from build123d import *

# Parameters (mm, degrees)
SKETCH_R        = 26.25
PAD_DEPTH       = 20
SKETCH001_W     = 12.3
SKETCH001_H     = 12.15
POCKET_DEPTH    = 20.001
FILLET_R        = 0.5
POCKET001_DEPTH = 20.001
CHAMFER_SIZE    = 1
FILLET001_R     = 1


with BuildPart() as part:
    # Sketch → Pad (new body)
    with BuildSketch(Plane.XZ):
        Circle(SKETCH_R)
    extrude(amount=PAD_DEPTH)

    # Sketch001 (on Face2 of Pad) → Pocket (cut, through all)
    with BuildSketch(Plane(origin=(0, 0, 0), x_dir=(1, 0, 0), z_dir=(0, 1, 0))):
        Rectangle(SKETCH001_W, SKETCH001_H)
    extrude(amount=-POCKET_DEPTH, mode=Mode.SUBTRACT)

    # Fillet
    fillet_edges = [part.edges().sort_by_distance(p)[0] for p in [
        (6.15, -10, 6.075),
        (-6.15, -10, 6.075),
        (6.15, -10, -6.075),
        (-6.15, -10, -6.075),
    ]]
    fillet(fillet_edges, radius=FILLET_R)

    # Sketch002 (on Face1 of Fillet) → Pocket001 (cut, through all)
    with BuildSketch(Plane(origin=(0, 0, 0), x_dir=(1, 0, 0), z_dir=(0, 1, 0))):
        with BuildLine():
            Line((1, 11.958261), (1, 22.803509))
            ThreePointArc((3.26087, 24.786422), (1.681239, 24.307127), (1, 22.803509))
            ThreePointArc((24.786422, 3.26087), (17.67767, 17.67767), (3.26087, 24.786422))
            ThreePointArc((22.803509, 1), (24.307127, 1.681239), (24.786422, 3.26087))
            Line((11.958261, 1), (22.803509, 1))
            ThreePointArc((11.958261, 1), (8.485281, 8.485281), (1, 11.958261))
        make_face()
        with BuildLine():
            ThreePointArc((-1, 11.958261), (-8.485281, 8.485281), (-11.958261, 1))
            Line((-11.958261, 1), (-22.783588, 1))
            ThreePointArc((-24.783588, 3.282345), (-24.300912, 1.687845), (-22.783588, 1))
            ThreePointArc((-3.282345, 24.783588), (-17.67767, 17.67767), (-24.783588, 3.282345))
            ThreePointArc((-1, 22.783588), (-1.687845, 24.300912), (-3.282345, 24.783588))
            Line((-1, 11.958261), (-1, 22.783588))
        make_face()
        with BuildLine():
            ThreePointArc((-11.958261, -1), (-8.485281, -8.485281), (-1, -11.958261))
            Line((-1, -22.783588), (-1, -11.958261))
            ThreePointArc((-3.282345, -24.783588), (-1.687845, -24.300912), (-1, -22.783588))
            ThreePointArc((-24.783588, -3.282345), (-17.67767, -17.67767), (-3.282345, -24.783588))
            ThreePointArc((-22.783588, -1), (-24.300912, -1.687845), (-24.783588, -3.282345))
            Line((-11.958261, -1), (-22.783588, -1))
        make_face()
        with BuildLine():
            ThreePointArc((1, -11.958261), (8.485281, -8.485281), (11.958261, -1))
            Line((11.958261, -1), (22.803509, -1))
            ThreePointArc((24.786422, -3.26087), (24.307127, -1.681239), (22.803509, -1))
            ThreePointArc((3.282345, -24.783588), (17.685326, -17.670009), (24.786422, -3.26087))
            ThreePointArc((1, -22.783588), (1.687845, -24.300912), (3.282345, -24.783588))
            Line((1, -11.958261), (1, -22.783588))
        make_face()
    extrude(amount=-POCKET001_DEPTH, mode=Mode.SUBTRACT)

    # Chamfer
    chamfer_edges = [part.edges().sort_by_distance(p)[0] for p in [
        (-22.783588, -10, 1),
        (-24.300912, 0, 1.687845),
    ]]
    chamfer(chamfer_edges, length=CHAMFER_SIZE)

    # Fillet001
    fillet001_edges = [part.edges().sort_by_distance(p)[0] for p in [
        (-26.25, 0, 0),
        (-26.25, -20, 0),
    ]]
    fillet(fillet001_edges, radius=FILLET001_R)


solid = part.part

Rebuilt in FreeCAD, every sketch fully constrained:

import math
import FreeCAD as App
import Part
import Sketcher
Q = App.Units.Quantity


def edges_at(feature, points):
    """Names of the edges that pass closest to the given points."""
    edges = feature.Shape.Edges
    near = lambda p: min(range(len(edges)), key=lambda i: edges[i].distToShape(Part.Vertex(*p))[0])
    return sorted({f"Edge{near(p) + 1}" for p in points})

doc = App.newDocument("Part")
body = doc.addObject("PartDesign::Body", "Body")

sketch1 = body.newObject("Sketcher::SketchObject", "Sketch")
sketch1.AttachmentSupport = (doc.getObject("XZ_Plane"), [""])
sketch1.MapMode = "FlatFace"
sketch1.addGeometry(Part.Circle(App.Vector(0, 0, 0), App.Vector(0, 0, 1), 26), False)
sketch1.addConstraint([
    Sketcher.Constraint("Coincident", 0, 3, -1, 1),
    Sketcher.Constraint("Diameter", 0, Q("52.5 mm")),
])
pad1 = body.newObject("PartDesign::Pad", "Pad")
pad1.Profile = sketch1
pad1.Length = 20

sketch2 = body.newObject("Sketcher::SketchObject", "Sketch001")
sketch2.AttachmentSupport = (doc.getObject("XZ_Plane"), [""])
sketch2.MapMode = "FlatFace"
sketch2.addGeometry([
    Part.LineSegment(App.Vector(-6, -6, 0), App.Vector(-6, 6, 0)),
    Part.LineSegment(App.Vector(-6, 6, 0), App.Vector(6, 6, 0)),
    Part.LineSegment(App.Vector(6, 6, 0), App.Vector(6, -6, 0)),
    Part.LineSegment(App.Vector(6, -6, 0), App.Vector(-6, -6, 0)),
], False)
sketch2.addConstraint([
    Sketcher.Constraint("Coincident", 0, 2, 1, 1),
    Sketcher.Constraint("Coincident", 1, 2, 2, 1),
    Sketcher.Constraint("Coincident", 2, 2, 3, 1),
    Sketcher.Constraint("Coincident", 3, 2, 0, 1),
    Sketcher.Constraint("Vertical", 0),
    Sketcher.Constraint("Horizontal", 1),
    Sketcher.Constraint("Vertical", 2),
    Sketcher.Constraint("Horizontal", 3),
    Sketcher.Constraint("Symmetric", 0, 2, 2, 2, -1, 1),
    Sketcher.Constraint("DistanceX", 1, 1, 1, 2, Q("12.3 mm")),
    Sketcher.Constraint("DistanceY", 0, 1, 0, 2, Q("12.15 mm")),
])
pocket1 = body.newObject("PartDesign::Pocket", "Pocket")
pocket1.Profile = sketch2
pocket1.Type = "ThroughAll"
pocket1.Reversed = True
doc.recompute()

fillet = body.newObject("PartDesign::Fillet", "Fillet")
fillet.Base = (pocket1, edges_at(pocket1, [
    (6.15, -10, 6.075),
    (-6.15, -10, 6.075),
    (6.15, -10, -6.075),
    (-6.15, -10, -6.075),
]))
fillet.Radius = 0.5

sketch3 = body.newObject("Sketcher::SketchObject", "Sketch002")
sketch3.AttachmentSupport = (doc.getObject("XZ_Plane"), [""])
sketch3.MapMode = "FlatFace"
sketch3.addGeometry([
    Part.LineSegment(App.Vector(1, -22.8, 0), App.Vector(1, -12, 0)),
    Part.ArcOfCircle(Part.Circle(App.Vector(0, 0, 0), App.Vector(0, 0, 1), 12), math.radians(-85), math.radians(-5)),
    Part.LineSegment(App.Vector(12, -1, 0), App.Vector(22.8, -1, 0)),
    Part.ArcOfCircle(Part.Circle(App.Vector(22.8, -3, 0), App.Vector(0, 0, 1), 2), math.radians(-7), math.radians(90)),
    Part.ArcOfCircle(Part.Circle(App.Vector(0, 0, 0), App.Vector(0, 0, 1), 25), math.radians(-83), math.radians(-7)),
    Part.ArcOfCircle(Part.Circle(App.Vector(3, -22.8, 0), App.Vector(0, 0, 1), 2), math.radians(-180), math.radians(-83)),
    Part.ArcOfCircle(Part.Circle(App.Vector(0, 0, 0), App.Vector(0, 0, 1), 12), math.radians(-175), math.radians(-95)),
    Part.LineSegment(App.Vector(-1, -12, 0), App.Vector(-1, -22.8, 0)),
    Part.ArcOfCircle(Part.Circle(App.Vector(-3, -22.8, 0), App.Vector(0, 0, 1), 2), math.radians(-98), math.radians(0)),
    Part.ArcOfCircle(Part.Circle(App.Vector(0, 0, 0), App.Vector(0, 0, 1), 25), math.radians(-172), math.radians(-98)),
    Part.ArcOfCircle(Part.Circle(App.Vector(-22.8, -3, 0), App.Vector(0, 0, 1), 2), math.radians(90), math.radians(188)),
    Part.LineSegment(App.Vector(-22.8, -1, 0), App.Vector(-12, -1, 0)),
    Part.ArcOfCircle(Part.Circle(App.Vector(0, 0, 0), App.Vector(0, 0, 1), 12), math.radians(95), math.radians(175)),
    Part.LineSegment(App.Vector(-12, 1, 0), App.Vector(-22.8, 1, 0)),
    Part.ArcOfCircle(Part.Circle(App.Vector(-22.8, 3, 0), App.Vector(0, 0, 1), 2), math.radians(172), math.radians(270)),
    Part.ArcOfCircle(Part.Circle(App.Vector(0, 0, 0), App.Vector(0, 0, 1), 25), math.radians(98), math.radians(172)),
    Part.ArcOfCircle(Part.Circle(App.Vector(-3, 22.8, 0), App.Vector(0, 0, 1), 2), math.radians(0), math.radians(98)),
    Part.LineSegment(App.Vector(-1, 22.8, 0), App.Vector(-1, 12, 0)),
    Part.ArcOfCircle(Part.Circle(App.Vector(0, 0, 0), App.Vector(0, 0, 1), 12), math.radians(5), math.radians(85)),
    Part.LineSegment(App.Vector(1, 12, 0), App.Vector(1, 22.8, 0)),
    Part.ArcOfCircle(Part.Circle(App.Vector(3, 22.8, 0), App.Vector(0, 0, 1), 2), math.radians(82), math.radians(180)),
    Part.ArcOfCircle(Part.Circle(App.Vector(0, 0, 0), App.Vector(0, 0, 1), 25), math.radians(7), math.radians(82)),
    Part.ArcOfCircle(Part.Circle(App.Vector(22.8, 3, 0), App.Vector(0, 0, 1), 2), math.radians(-90), math.radians(7)),
    Part.LineSegment(App.Vector(22.8, 1, 0), App.Vector(12, 1, 0)),
], False)
sketch3.addConstraint([
    Sketcher.Constraint("Coincident", 0, 2, 1, 1),
    Sketcher.Constraint("Coincident", 1, 2, 2, 1),
    Sketcher.Constraint("Tangent", 2, 2, 3, 2),
    Sketcher.Constraint("Tangent", 3, 1, 4, 2),
    Sketcher.Constraint("Tangent", 4, 1, 5, 2),
    Sketcher.Constraint("Tangent", 5, 1, 0, 1),
    Sketcher.Constraint("Coincident", 6, 2, 7, 1),
    Sketcher.Constraint("Tangent", 7, 2, 8, 2),
    Sketcher.Constraint("Tangent", 8, 1, 9, 2),
    Sketcher.Constraint("Tangent", 9, 1, 10, 2),
    Sketcher.Constraint("Tangent", 10, 1, 11, 1),
    Sketcher.Constraint("Coincident", 11, 2, 6, 1),
    Sketcher.Constraint("Coincident", 12, 2, 13, 1),
    Sketcher.Constraint("Tangent", 13, 2, 14, 2),
    Sketcher.Constraint("Tangent", 14, 1, 15, 2),
    Sketcher.Constraint("Tangent", 15, 1, 16, 2),
    Sketcher.Constraint("Tangent", 16, 1, 17, 1),
    Sketcher.Constraint("Coincident", 17, 2, 12, 1),
    Sketcher.Constraint("Coincident", 18, 2, 19, 1),
    Sketcher.Constraint("Tangent", 19, 2, 20, 2),
    Sketcher.Constraint("Tangent", 20, 1, 21, 2),
    Sketcher.Constraint("Tangent", 21, 1, 22, 2),
    Sketcher.Constraint("Tangent", 22, 1, 23, 1),
    Sketcher.Constraint("Coincident", 23, 2, 18, 1),
    Sketcher.Constraint("Vertical", 0),
    Sketcher.Constraint("Horizontal", 2),
    Sketcher.Constraint("Vertical", 7),
    Sketcher.Constraint("Horizontal", 11),
    Sketcher.Constraint("Horizontal", 13),
    Sketcher.Constraint("Vertical", 17),
    Sketcher.Constraint("Vertical", 19),
    Sketcher.Constraint("Horizontal", 23),
    Sketcher.Constraint("Coincident", 1, 3, -1, 1),
    Sketcher.Constraint("Coincident", 4, 3, -1, 1),
    Sketcher.Constraint("Coincident", 6, 3, -1, 1),
    Sketcher.Constraint("Coincident", 9, 3, -1, 1),
    Sketcher.Constraint("Coincident", 12, 3, -1, 1),
    Sketcher.Constraint("Coincident", 15, 3, -1, 1),
    Sketcher.Constraint("Coincident", 18, 3, -1, 1),
    Sketcher.Constraint("Coincident", 21, 3, -1, 1),
    Sketcher.Constraint("Equal", 3, 5),
    Sketcher.Constraint("Equal", 1, 6),
    Sketcher.Constraint("Equal", 8, 10),
    Sketcher.Constraint("Equal", 6, 12),
    Sketcher.Constraint("Equal", 10, 14),
    Sketcher.Constraint("Equal", 9, 15),
    Sketcher.Constraint("Equal", 14, 16),
    Sketcher.Constraint("Equal", 12, 18),
    Sketcher.Constraint("Equal", 16, 20),
    Sketcher.Constraint("Equal", 5, 22),
    Sketcher.Constraint("Symmetric", 8, 3, 20, 3, -1, 1),
    Sketcher.Constraint("Symmetric", 3, 3, 22, 3, -1),
    Sketcher.Constraint("Horizontal", 16, 3, 20, 3),
    Sketcher.Constraint("Horizontal", 0, 2, 6, 2),
    Sketcher.Constraint("Horizontal", 2, 2, 10, 1),
    Sketcher.Constraint("Horizontal", 13, 2, 22, 1),
    Sketcher.Constraint("Equal", 23, 0),
    Sketcher.Constraint("Radius", 3, Q("2 mm")),
    Sketcher.Constraint("Radius", 9, Q("25 mm")),
    Sketcher.Constraint("DistanceY", 3, 3, -1, 1, Q("3 mm")),
    Sketcher.Constraint("DistanceY", 8, 1, 8, 3, Q("2.000001 mm")),
    Sketcher.Constraint("Radius", 1, Q("12.000003 mm")),
])
pocket2 = body.newObject("PartDesign::Pocket", "Pocket001")
pocket2.Profile = sketch3
pocket2.Type = "ThroughAll"
pocket2.Reversed = True
doc.recompute()

chamfer = body.newObject("PartDesign::Chamfer", "Chamfer")
chamfer.Base = (pocket2, edges_at(pocket2, [(-22.784, -10, 1), (-24.301, 0, 1.688)]))
chamfer.Size = 1
doc.recompute()

fillet2 = body.newObject("PartDesign::Fillet", "Fillet001")
fillet2.Base = (chamfer, edges_at(chamfer, [(-26.25, 0, 0), (-26.25, -20, 0)]))
fillet2.Radius = 1

doc.recompute()
